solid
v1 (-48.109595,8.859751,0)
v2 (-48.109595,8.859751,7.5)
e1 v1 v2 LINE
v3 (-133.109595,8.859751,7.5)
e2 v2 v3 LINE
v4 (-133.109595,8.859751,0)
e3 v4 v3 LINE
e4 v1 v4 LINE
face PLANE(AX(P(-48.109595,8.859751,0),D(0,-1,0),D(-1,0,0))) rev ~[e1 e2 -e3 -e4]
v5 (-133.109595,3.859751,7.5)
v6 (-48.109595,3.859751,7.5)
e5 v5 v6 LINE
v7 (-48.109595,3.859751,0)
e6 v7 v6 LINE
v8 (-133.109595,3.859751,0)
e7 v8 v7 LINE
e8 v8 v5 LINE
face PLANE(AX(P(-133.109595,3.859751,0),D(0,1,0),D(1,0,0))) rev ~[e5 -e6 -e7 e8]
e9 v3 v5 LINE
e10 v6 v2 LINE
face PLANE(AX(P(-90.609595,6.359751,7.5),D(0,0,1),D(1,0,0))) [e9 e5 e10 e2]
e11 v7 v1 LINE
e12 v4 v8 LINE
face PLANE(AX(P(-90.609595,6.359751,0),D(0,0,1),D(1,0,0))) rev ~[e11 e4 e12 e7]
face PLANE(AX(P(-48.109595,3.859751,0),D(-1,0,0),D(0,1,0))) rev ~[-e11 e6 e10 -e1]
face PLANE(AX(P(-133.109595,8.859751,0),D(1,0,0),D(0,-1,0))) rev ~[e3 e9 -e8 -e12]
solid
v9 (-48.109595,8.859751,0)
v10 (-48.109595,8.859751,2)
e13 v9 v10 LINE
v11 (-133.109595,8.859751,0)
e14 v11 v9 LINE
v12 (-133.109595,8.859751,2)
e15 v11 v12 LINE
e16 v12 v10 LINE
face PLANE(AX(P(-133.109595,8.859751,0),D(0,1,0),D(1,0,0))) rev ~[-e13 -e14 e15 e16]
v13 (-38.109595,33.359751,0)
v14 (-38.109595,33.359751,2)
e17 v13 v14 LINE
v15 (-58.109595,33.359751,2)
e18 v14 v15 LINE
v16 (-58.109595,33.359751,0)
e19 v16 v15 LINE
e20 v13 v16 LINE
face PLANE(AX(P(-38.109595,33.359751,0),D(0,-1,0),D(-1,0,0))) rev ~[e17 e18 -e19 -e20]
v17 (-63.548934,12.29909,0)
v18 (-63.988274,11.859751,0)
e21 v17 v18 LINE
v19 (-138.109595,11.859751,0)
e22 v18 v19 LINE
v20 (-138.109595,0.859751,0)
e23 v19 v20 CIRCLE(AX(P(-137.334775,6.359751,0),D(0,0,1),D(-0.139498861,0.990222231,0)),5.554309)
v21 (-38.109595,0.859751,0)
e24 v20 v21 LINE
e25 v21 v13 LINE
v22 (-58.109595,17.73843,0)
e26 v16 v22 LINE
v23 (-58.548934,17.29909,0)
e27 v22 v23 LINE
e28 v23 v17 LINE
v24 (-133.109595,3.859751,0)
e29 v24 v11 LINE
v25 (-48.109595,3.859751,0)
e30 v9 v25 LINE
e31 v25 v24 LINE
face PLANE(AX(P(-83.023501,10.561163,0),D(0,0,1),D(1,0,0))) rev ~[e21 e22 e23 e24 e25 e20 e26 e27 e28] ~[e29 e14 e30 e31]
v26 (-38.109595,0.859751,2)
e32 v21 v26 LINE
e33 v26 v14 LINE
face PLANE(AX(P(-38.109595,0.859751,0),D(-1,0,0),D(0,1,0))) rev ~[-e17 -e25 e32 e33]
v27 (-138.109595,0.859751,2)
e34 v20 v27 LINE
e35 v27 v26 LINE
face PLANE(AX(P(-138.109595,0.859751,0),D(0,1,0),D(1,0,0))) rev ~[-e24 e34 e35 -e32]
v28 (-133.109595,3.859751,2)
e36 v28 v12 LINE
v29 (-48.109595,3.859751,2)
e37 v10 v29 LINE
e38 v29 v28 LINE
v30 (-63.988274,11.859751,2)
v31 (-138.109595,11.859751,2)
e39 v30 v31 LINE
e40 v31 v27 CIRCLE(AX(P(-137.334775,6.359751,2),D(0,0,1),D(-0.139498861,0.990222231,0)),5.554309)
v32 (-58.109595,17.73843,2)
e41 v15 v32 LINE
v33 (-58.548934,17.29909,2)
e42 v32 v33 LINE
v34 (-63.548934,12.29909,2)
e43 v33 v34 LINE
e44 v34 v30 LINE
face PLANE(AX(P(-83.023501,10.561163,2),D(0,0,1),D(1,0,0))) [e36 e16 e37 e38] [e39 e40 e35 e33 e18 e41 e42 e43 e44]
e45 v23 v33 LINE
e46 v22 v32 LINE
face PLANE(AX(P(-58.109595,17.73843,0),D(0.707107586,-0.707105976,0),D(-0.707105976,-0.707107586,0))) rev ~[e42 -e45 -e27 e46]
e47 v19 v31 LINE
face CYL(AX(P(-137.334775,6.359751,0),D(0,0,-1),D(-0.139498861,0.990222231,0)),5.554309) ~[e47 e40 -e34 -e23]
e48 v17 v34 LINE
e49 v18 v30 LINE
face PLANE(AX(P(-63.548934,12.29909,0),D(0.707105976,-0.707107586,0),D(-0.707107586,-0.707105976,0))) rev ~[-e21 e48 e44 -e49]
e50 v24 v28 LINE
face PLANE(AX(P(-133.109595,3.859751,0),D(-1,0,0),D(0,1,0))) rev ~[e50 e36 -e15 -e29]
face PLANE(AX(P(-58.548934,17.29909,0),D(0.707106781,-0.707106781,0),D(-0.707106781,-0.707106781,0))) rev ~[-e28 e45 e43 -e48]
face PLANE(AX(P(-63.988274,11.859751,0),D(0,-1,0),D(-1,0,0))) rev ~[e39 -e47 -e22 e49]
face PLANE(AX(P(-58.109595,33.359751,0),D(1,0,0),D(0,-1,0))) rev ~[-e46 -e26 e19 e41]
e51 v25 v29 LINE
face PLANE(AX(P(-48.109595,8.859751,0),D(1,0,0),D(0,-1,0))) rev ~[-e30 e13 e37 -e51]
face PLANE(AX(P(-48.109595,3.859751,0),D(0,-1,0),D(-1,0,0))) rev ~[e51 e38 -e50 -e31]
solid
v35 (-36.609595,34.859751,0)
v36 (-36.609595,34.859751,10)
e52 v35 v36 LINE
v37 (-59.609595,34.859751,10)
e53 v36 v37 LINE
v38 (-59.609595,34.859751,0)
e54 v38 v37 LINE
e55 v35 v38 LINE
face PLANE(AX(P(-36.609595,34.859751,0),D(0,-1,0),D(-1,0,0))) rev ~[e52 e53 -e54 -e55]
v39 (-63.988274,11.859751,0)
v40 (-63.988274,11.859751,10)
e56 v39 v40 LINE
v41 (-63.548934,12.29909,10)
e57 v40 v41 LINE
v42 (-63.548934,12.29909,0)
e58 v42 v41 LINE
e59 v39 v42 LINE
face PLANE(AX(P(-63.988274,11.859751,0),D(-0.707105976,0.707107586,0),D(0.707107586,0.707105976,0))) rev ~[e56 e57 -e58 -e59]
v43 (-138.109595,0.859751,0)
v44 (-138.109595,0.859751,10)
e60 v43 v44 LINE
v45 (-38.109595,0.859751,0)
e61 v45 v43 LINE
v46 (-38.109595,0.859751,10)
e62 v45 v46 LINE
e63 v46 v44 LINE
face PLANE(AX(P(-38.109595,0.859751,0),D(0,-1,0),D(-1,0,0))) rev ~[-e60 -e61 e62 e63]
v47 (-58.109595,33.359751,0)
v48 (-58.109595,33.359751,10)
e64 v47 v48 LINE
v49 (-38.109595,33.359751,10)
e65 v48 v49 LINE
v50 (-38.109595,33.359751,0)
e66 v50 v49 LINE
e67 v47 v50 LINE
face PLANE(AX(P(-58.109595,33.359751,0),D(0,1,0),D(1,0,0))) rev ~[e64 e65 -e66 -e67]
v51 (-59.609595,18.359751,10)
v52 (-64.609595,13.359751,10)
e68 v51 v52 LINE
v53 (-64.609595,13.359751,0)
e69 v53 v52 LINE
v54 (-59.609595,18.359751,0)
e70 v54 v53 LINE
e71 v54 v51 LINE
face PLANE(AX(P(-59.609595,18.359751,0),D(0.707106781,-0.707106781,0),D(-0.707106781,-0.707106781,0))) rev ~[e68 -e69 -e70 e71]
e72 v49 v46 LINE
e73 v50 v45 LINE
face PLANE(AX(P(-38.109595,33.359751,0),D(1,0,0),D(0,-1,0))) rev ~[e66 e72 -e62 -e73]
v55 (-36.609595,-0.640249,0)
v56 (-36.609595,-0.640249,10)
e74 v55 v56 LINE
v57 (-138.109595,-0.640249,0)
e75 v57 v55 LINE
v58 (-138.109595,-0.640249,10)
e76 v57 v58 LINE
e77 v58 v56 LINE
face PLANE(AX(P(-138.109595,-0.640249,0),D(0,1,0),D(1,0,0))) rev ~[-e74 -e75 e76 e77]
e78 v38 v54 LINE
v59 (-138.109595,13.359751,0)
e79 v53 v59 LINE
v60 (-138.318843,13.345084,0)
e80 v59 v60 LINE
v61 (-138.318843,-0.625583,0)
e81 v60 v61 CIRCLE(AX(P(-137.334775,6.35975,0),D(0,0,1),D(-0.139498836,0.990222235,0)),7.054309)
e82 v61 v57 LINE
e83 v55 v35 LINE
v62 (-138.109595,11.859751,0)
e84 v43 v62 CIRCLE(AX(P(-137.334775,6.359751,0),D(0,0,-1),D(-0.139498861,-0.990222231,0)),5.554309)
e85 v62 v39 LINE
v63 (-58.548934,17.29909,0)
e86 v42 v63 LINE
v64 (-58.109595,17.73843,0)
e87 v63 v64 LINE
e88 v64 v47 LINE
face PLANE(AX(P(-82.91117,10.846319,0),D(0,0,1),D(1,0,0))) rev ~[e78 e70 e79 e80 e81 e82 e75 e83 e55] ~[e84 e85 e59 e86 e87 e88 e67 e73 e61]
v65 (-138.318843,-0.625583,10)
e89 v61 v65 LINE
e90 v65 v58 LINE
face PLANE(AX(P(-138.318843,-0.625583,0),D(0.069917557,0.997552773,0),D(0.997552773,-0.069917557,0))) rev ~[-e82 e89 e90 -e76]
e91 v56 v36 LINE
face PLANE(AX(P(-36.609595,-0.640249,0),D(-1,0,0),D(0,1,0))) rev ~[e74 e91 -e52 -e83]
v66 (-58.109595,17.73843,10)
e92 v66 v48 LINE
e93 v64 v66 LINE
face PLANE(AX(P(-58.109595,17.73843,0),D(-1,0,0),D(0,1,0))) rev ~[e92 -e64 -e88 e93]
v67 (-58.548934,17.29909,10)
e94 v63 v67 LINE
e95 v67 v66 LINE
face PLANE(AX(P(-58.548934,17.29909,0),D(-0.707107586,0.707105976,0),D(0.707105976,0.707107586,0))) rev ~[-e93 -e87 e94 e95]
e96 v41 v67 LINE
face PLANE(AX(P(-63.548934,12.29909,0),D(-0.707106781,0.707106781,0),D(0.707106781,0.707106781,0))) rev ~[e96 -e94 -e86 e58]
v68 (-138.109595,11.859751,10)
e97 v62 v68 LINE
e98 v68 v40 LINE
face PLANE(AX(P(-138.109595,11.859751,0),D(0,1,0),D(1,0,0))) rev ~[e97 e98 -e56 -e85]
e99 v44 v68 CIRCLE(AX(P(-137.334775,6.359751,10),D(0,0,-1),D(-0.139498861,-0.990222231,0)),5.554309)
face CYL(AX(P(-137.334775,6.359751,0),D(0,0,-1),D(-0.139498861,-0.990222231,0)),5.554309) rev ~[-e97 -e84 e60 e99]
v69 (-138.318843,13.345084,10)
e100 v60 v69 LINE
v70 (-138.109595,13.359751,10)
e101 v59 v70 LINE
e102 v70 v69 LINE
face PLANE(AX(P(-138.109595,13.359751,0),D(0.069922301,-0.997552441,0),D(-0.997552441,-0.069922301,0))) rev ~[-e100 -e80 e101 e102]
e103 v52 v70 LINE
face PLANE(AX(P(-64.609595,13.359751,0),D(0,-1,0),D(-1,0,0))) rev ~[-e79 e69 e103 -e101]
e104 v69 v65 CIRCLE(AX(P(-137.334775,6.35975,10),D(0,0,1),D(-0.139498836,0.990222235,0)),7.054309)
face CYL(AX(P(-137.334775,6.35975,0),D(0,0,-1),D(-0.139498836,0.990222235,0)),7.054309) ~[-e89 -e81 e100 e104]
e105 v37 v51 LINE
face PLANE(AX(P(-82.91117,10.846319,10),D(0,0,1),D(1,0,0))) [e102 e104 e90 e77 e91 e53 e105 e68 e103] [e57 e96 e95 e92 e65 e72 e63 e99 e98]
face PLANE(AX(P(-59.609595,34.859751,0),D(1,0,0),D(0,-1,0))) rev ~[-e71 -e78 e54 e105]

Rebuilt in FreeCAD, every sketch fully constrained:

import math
import FreeCAD as App
import Part
import Sketcher
Q = App.Units.Quantity


def add_polygon(sketch, points):
    """Adds a closed chain of lines whose ends are joined by coincident constraints."""
    first, n = sketch.GeometryCount, len(points)
    for a, b in zip(points, points[1:] + points[:1]):
        sketch.addGeometry(Part.LineSegment(App.Vector(*a, 0), App.Vector(*b, 0)), False)
    for i in range(n):
        sketch.addConstraint(Sketcher.Constraint("Coincident", first + i, 2, first + (i + 1) % n, 1))

doc = App.newDocument("Part")
body = doc.addObject("PartDesign::Body", "Body")

# Sketch on XY plane
sketch1 = body.newObject("Sketcher::SketchObject", "Sketch")
sketch1.AttachmentSupport = (doc.getObject("XY_Plane"), [""])
sketch1.MapMode = "FlatFace"
sketch1.addGeometry([
    Part.LineSegment(App.Vector(-138.109595, 13.359751, 0), App.Vector(-138.318843, 13.345084, 0)),  # 0
    Part.ArcOfCircle(Part.Circle(App.Vector(-137.334775, 6.35975, 0), App.Vector(0, 0, 1), 7.054309), math.radians(98.018847), math.radians(261.981153)),  # 1
    Part.LineSegment(App.Vector(-138.318843, -0.625583, 0), App.Vector(-138.109595, -0.640249, 0)),  # 2
    Part.LineSegment(App.Vector(-138.109595, -0.640249, 0), App.Vector(-36.609595, -0.640249, 0)),  # 3
    Part.LineSegment(App.Vector(-36.609595, -0.640249, 0), App.Vector(-36.609595, 34.859751, 0)),  # 4
    Part.LineSegment(App.Vector(-36.609595, 34.859751, 0), App.Vector(-59.609595, 34.859751, 0)),  # 5
    Part.LineSegment(App.Vector(-59.609595, 34.859751, 0), App.Vector(-59.609595, 18.359751, 0)),  # 6
    Part.LineSegment(App.Vector(-59.609595, 18.359751, 0), App.Vector(-64.609595, 13.359751, 0)),  # 7
    Part.LineSegment(App.Vector(-64.609595, 13.359751, 0), App.Vector(-138.109595, 13.359751, 0)),  # 8
    Part.LineSegment(App.Vector(-38.109595, 33.359751, 0), App.Vector(-38.109595, 0.859751, 0)),  # 9
    Part.LineSegment(App.Vector(-38.109595, 0.859751, 0), App.Vector(-138.109595, 0.859751, 0)),  # 10
    Part.ArcOfCircle(Part.Circle(App.Vector(-137.334775, 6.359751, 0), App.Vector(0, 0, 1), 5.554309), math.radians(98.018849), math.radians(261.981151)),  # 11
    Part.LineSegment(App.Vector(-138.109595, 11.859751, 0), App.Vector(-63.988274, 11.859751, 0)),  # 12
    Part.LineSegment(App.Vector(-63.988274, 11.859751, 0), App.Vector(-63.548934, 12.29909, 0)),  # 13
    Part.LineSegment(App.Vector(-63.548934, 12.29909, 0), App.Vector(-58.548934, 17.29909, 0)),  # 14
    Part.LineSegment(App.Vector(-58.548934, 17.29909, 0), App.Vector(-58.109595, 17.73843, 0)),  # 15
    Part.LineSegment(App.Vector(-58.109595, 17.73843, 0), App.Vector(-58.109595, 33.359751, 0)),  # 16
    Part.LineSegment(App.Vector(-58.109595, 33.359751, 0), App.Vector(-38.109595, 33.359751, 0)),  # 17
], False)
sketch1.addConstraint([
    Sketcher.Constraint("Coincident", 0, 2, 1, 1),
    Sketcher.Constraint("Coincident", 1, 2, 2, 1),
    Sketcher.Constraint("Coincident", 2, 2, 3, 1),
    Sketcher.Constraint("Coincident", 3, 2, 4, 1),
    Sketcher.Constraint("Coincident", 4, 2, 5, 1),
    Sketcher.Constraint("Coincident", 5, 2, 6, 1),
    Sketcher.Constraint("Coincident", 6, 2, 7, 1),
    Sketcher.Constraint("Coincident", 7, 2, 8, 1),
    Sketcher.Constraint("Coincident", 8, 2, 0, 1),
    Sketcher.Constraint("Coincident", 9, 2, 10, 1),
    Sketcher.Constraint("Coincident", 10, 2, 11, 2),
    Sketcher.Constraint("Coincident", 11, 1, 12, 1),
    Sketcher.Constraint("Coincident", 12, 2, 13, 1),
    Sketcher.Constraint("Coincident", 13, 2, 14, 1),
    Sketcher.Constraint("Coincident", 14, 2, 15, 1),
    Sketcher.Constraint("Coincident", 15, 2, 16, 1),
    Sketcher.Constraint("Coincident", 16, 2, 17, 1),
    Sketcher.Constraint("Coincident", 17, 2, 9, 1),
    Sketcher.Constraint("Horizontal", 3),
    Sketcher.Constraint("Vertical", 4),
    Sketcher.Constraint("Horizontal", 5),
    Sketcher.Constraint("Vertical", 6),
    Sketcher.Constraint("Horizontal", 8),
    Sketcher.Constraint("Vertical", 9),
    Sketcher.Constraint("Horizontal", 10),
    Sketcher.Constraint("Horizontal", 12),
    Sketcher.Constraint("Vertical", 16),
    Sketcher.Constraint("Horizontal", 17),
    Sketcher.Constraint("Coincident", 11, 3, 1, 3),
    Sketcher.Constraint("Parallel", 7, 13),
    Sketcher.Constraint("Parallel", 13, 14),
    Sketcher.Constraint("Parallel", 14, 15),
    Sketcher.Constraint("Vertical", 0, 2, 1, 2),
    Sketcher.Constraint("Vertical", 2, 2, 8, 2),
    Sketcher.Constraint("Vertical", 8, 2, 10, 2),
    Sketcher.Constraint("Vertical", 10, 2, 11, 1),
    Sketcher.Constraint("Equal", 0, 2),
    Sketcher.Constraint("Equal", 7, 14),
    Sketcher.Constraint("Equal", 13, 15),
    Sketcher.Constraint("DistanceX", 5, 2, 5, 1, 23.0),
    Sketcher.Constraint("DistanceX", 10, 2, 10, 1, 100.0),
    Sketcher.Constraint("DistanceX", 17, 1, 17, 2, 20.0),
    Sketcher.Constraint("Angle", 7, Q("-135 deg")),
    Sketcher.Constraint("DistanceX", 3, 1, 3, 2, 101.5),
    Sketcher.Constraint("DistanceX", 8, 2, 8, 1, 73.5),
    Sketcher.Constraint("DistanceY", 4, 1, 4, 2, 35.5),
    Sketcher.Constraint("DistanceY", 6, 2, 6, 1, 16.5),
    Sketcher.Constraint("DistanceY", 9, 2, 9, 1, 32.5),
    Sketcher.Constraint("DistanceY", 9, 2, 4, 2, 34.0),
    Sketcher.Constraint("Radius", 1, 7.054309),
    Sketcher.Constraint("Radius", 11, 5.554309),
    Sketcher.Constraint("DistanceX", 12, 1, 12, 2, 74.121321),
    Sketcher.Constraint("Distance", 0, 0.209761),
    Sketcher.Constraint("DistanceY", -1, 1, 1, 3, 6.35975),
    Sketcher.Constraint("DistanceX", 1, 3, -1, 1, 137.334775),
])
pad1 = body.newObject("PartDesign::Pad", "Pad")
pad1.Profile = sketch1
pad1.Length = 10
body2 = doc.addObject("PartDesign::Body", "Body001")

# Sketch on XY plane
sketch2 = body2.newObject("Sketcher::SketchObject", "Sketch001")
sketch2.AttachmentSupport = (doc.getObject("XY_Plane001"), [""])
sketch2.MapMode = "FlatFace"
add_polygon(sketch2, [(-133.109595, 8.859751), (-133.109595, 3.859751), (-48.109595, 3.859751), (-48.109595, 8.859751)])  # lines 0-3
sketch2.addConstraint([
    Sketcher.Constraint("Vertical", 0),
    Sketcher.Constraint("Horizontal", 1),
    Sketcher.Constraint("Vertical", 2),
    Sketcher.Constraint("Horizontal", 3),
    Sketcher.Constraint("DistanceX", 1, 1, 1, 2, 85.0),
    Sketcher.Constraint("DistanceY", 0, 2, 0, 1, 5.0),
    Sketcher.Constraint("DistanceY", -1, 1, 0, 2, 3.859751),
    Sketcher.Constraint("DistanceX", 0, 2, -1, 1, 133.109595),
])
pad2 = body2.newObject("PartDesign::Pad", "Pad001")
pad2.Profile = sketch2
pad2.Length = 7.5
body3 = doc.addObject("PartDesign::Body", "Body002")

# Sketch on XY plane
sketch3 = body3.newObject("Sketcher::SketchObject", "Sketch002")
sketch3.AttachmentSupport = (doc.getObject("XY_Plane002"), [""])
sketch3.MapMode = "FlatFace"
sketch3.addGeometry(Part.LineSegment(App.Vector(-138.109595, 0.859751, 0), App.Vector(-38.109595, 0.859751, 0)), False)  # 0
sketch3.addGeometry(Part.LineSegment(App.Vector(-38.109595, 0.859751, 0), App.Vector(-38.109595, 33.359751, 0)), False)  # 1
sketch3.addGeometry(Part.LineSegment(App.Vector(-38.109595, 33.359751, 0), App.Vector(-58.109595, 33.359751, 0)), False)  # 2
sketch3.addGeometry(Part.LineSegment(App.Vector(-58.109595, 33.359751, 0), App.Vector(-58.109595, 17.73843, 0)), False)  # 3
sketch3.addGeometry(Part.LineSegment(App.Vector(-58.109595, 17.73843, 0), App.Vector(-58.548934, 17.29909, 0)), False)  # 4
sketch3.addGeometry(Part.LineSegment(App.Vector(-58.548934, 17.29909, 0), App.Vector(-63.548934, 12.29909, 0)), False)  # 5
sketch3.addGeometry(Part.LineSegment(App.Vector(-63.548934, 12.29909, 0), App.Vector(-63.988274, 11.859751, 0)), False)  # 6
sketch3.addGeometry(Part.LineSegment(App.Vector(-63.988274, 11.859751, 0), App.Vector(-138.109595, 11.859751, 0)), False)  # 7
sketch3.addGeometry(Part.ArcOfCircle(Part.Circle(App.Vector(-137.334775, 6.359751, 0), App.Vector(0, 0, 1), 5.554309), math.radians(98.018849), math.radians(261.981151)), False)  # 8
add_polygon(sketch3, [(-48.109595, 3.859751), (-133.109595, 3.859751), (-133.109595, 8.859751), (-48.109595, 8.859751)])  # lines 9-12
sketch3.addConstraint([
    Sketcher.Constraint("Coincident", 0, 2, 1, 1),
    Sketcher.Constraint("Coincident", 1, 2, 2, 1),
    Sketcher.Constraint("Coincident", 2, 2, 3, 1),
    Sketcher.Constraint("Coincident", 3, 2, 4, 1),
    Sketcher.Constraint("Coincident", 4, 2, 5, 1),
    Sketcher.Constraint("Coincident", 5, 2, 6, 1),
    Sketcher.Constraint("Coincident", 6, 2, 7, 1),
    Sketcher.Constraint("Coincident", 7, 2, 8, 1),
    Sketcher.Constraint("Coincident", 8, 2, 0, 1),
    Sketcher.Constraint("Horizontal", 0),
    Sketcher.Constraint("Vertical", 1),
    Sketcher.Constraint("Horizontal", 2),
    Sketcher.Constraint("Vertical", 3),
    Sketcher.Constraint("Horizontal", 7),
    Sketcher.Constraint("Horizontal", 9),
    Sketcher.Constraint("Vertical", 10),
    Sketcher.Constraint("Horizontal", 11),
    Sketcher.Constraint("Vertical", 12),
    Sketcher.Constraint("Parallel", 4, 5),
    Sketcher.Constraint("Parallel", 5, 6),
    Sketcher.Constraint("Vertical", 7, 2, 8, 2),
    Sketcher.Constraint("Equal", 4, 6),
    Sketcher.Constraint("DistanceX", 0, 1, 0, 2, 100.0),
    Sketcher.Constraint("DistanceX", 2, 2, 2, 1, 20.0),
    Sketcher.Constraint("DistanceX", 9, 2, 9, 1, 85.0),
    Sketcher.Constraint("DistanceY", 10, 1, 10, 2, 5.0),
    Sketcher.Constraint("Angle", 5, Q("-135 deg")),
    Sketcher.Constraint("DistanceY", 1, 1, 1, 2, 32.5),
    Sketcher.Constraint("DistanceY", 8, 3, 1, 2, 27.0),
    Sketcher.Constraint("DistanceX", 5, 2, 4, 2, 5.0),
    Sketcher.Constraint("DistanceX", 8, 2, 9, 2, 5.0),
    Sketcher.Constraint("DistanceY", 8, 2, 9, 2, 3.0),
    Sketcher.Constraint("Radius", 8, 5.554309),
    Sketcher.Constraint("DistanceX", 7, 2, 7, 1, 74.121321),
    Sketcher.Constraint("DistanceY", -1, 1, 8, 3, 6.359751),
    Sketcher.Constraint("DistanceX", 8, 3, -1, 1, 137.334775),
])
pad3 = body3.newObject("PartDesign::Pad", "Pad002")
pad3.Profile = sketch3
pad3.Length = 2

doc.recompute()
